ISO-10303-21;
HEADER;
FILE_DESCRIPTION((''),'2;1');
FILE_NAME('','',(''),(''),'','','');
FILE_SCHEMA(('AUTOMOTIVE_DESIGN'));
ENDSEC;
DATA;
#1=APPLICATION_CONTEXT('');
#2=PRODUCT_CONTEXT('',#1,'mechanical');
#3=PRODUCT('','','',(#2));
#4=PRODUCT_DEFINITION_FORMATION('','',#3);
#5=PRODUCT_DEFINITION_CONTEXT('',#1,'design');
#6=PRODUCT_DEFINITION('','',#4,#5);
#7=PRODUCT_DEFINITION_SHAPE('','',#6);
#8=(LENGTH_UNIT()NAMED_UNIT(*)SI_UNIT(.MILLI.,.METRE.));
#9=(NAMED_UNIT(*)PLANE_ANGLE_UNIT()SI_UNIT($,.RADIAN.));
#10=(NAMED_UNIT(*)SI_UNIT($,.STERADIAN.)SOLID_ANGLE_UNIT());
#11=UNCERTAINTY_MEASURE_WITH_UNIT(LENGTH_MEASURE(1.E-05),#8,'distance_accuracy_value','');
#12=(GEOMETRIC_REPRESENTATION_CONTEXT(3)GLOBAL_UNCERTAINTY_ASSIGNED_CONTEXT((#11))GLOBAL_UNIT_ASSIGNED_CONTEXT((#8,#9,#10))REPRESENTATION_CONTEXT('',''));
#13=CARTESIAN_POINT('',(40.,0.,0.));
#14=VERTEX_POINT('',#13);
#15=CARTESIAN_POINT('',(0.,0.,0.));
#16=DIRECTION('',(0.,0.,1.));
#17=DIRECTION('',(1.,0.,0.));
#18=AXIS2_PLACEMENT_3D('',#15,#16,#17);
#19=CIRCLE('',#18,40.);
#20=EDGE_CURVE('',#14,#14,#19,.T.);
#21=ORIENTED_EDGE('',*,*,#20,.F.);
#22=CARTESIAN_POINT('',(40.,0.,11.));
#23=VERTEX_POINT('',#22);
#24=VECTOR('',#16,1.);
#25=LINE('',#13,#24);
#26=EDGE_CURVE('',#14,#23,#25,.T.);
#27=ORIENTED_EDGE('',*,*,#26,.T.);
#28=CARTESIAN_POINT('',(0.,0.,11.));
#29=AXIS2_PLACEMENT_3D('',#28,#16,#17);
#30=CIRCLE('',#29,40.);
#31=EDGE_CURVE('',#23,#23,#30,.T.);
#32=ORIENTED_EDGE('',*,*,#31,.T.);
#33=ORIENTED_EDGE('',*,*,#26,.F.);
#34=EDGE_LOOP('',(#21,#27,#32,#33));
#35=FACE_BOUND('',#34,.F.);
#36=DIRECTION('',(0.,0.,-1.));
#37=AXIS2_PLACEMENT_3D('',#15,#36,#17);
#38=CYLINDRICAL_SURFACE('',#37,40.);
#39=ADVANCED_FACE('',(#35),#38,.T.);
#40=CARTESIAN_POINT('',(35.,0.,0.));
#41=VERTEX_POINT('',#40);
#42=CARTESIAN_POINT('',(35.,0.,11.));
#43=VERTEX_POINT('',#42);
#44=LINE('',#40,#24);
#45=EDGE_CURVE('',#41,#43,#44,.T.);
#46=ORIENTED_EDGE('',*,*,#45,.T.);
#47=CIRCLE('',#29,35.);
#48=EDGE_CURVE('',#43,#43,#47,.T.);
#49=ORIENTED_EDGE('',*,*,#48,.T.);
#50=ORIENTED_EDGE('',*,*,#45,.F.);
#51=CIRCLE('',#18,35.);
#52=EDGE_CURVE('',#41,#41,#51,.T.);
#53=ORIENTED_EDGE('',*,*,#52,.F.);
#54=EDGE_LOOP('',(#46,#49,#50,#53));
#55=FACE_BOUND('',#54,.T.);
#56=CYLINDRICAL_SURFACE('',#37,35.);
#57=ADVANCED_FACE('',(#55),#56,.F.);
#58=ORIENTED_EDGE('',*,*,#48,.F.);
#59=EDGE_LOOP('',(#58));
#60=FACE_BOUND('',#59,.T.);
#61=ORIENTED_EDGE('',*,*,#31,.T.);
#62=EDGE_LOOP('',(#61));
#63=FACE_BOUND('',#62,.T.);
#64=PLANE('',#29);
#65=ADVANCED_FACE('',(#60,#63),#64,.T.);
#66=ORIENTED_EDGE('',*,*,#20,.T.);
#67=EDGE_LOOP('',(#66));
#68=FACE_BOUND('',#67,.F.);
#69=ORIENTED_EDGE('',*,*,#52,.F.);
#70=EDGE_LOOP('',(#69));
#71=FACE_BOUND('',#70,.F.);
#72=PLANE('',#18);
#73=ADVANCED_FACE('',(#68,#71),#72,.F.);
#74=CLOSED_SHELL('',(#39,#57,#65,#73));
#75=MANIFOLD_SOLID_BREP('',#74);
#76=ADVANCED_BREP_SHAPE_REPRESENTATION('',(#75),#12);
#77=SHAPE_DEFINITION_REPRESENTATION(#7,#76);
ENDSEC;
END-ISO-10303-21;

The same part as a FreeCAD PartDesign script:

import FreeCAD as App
import Part
import Sketcher

doc = App.newDocument("Part")
params = doc.addObject("Spreadsheet::Sheet", "Params")
for row, (alias, value) in enumerate([
    ("sketch1_diameter", "80 mm"),
    ("sketch1_diameter2", "70 mm"),
    ("pad1_length", "11 mm"),
], start=1):
    params.set(f"A{row}", alias)
    params.set(f"B{row}", "=" + value)
    params.setAlias(f"B{row}", alias)

body = doc.addObject("PartDesign::Body", "Body")

# Sketch on XY plane
sketch1 = body.newObject("Sketcher::SketchObject", "Sketch")
sketch1.AttachmentSupport = (doc.getObject("XY_Plane"), [""])
sketch1.MapMode = "FlatFace"
sketch1.addGeometry([
    Part.Circle(App.Vector(0, 0, 0), App.Vector(0, 0, 1), 40),
    Part.Circle(App.Vector(0, 0, 0), App.Vector(0, 0, 1), 35),
], False)
sketch1.addConstraint([
    Sketcher.Constraint("Coincident", 0, 3, -1, 1),
    Sketcher.Constraint("Coincident", 1, 3, -1, 1),
    Sketcher.Constraint("Diameter", 0, 80.0),
    Sketcher.Constraint("Diameter", 1, 70.0),
])
sketch1.setExpression("Constraints[2]", "Params.sketch1_diameter")
sketch1.setExpression("Constraints[3]", "Params.sketch1_diameter2")
pad1 = body.newObject("PartDesign::Pad", "Pad")
pad1.Profile = sketch1
pad1.setExpression("Length", "Params.pad1_length")

doc.recompute()
